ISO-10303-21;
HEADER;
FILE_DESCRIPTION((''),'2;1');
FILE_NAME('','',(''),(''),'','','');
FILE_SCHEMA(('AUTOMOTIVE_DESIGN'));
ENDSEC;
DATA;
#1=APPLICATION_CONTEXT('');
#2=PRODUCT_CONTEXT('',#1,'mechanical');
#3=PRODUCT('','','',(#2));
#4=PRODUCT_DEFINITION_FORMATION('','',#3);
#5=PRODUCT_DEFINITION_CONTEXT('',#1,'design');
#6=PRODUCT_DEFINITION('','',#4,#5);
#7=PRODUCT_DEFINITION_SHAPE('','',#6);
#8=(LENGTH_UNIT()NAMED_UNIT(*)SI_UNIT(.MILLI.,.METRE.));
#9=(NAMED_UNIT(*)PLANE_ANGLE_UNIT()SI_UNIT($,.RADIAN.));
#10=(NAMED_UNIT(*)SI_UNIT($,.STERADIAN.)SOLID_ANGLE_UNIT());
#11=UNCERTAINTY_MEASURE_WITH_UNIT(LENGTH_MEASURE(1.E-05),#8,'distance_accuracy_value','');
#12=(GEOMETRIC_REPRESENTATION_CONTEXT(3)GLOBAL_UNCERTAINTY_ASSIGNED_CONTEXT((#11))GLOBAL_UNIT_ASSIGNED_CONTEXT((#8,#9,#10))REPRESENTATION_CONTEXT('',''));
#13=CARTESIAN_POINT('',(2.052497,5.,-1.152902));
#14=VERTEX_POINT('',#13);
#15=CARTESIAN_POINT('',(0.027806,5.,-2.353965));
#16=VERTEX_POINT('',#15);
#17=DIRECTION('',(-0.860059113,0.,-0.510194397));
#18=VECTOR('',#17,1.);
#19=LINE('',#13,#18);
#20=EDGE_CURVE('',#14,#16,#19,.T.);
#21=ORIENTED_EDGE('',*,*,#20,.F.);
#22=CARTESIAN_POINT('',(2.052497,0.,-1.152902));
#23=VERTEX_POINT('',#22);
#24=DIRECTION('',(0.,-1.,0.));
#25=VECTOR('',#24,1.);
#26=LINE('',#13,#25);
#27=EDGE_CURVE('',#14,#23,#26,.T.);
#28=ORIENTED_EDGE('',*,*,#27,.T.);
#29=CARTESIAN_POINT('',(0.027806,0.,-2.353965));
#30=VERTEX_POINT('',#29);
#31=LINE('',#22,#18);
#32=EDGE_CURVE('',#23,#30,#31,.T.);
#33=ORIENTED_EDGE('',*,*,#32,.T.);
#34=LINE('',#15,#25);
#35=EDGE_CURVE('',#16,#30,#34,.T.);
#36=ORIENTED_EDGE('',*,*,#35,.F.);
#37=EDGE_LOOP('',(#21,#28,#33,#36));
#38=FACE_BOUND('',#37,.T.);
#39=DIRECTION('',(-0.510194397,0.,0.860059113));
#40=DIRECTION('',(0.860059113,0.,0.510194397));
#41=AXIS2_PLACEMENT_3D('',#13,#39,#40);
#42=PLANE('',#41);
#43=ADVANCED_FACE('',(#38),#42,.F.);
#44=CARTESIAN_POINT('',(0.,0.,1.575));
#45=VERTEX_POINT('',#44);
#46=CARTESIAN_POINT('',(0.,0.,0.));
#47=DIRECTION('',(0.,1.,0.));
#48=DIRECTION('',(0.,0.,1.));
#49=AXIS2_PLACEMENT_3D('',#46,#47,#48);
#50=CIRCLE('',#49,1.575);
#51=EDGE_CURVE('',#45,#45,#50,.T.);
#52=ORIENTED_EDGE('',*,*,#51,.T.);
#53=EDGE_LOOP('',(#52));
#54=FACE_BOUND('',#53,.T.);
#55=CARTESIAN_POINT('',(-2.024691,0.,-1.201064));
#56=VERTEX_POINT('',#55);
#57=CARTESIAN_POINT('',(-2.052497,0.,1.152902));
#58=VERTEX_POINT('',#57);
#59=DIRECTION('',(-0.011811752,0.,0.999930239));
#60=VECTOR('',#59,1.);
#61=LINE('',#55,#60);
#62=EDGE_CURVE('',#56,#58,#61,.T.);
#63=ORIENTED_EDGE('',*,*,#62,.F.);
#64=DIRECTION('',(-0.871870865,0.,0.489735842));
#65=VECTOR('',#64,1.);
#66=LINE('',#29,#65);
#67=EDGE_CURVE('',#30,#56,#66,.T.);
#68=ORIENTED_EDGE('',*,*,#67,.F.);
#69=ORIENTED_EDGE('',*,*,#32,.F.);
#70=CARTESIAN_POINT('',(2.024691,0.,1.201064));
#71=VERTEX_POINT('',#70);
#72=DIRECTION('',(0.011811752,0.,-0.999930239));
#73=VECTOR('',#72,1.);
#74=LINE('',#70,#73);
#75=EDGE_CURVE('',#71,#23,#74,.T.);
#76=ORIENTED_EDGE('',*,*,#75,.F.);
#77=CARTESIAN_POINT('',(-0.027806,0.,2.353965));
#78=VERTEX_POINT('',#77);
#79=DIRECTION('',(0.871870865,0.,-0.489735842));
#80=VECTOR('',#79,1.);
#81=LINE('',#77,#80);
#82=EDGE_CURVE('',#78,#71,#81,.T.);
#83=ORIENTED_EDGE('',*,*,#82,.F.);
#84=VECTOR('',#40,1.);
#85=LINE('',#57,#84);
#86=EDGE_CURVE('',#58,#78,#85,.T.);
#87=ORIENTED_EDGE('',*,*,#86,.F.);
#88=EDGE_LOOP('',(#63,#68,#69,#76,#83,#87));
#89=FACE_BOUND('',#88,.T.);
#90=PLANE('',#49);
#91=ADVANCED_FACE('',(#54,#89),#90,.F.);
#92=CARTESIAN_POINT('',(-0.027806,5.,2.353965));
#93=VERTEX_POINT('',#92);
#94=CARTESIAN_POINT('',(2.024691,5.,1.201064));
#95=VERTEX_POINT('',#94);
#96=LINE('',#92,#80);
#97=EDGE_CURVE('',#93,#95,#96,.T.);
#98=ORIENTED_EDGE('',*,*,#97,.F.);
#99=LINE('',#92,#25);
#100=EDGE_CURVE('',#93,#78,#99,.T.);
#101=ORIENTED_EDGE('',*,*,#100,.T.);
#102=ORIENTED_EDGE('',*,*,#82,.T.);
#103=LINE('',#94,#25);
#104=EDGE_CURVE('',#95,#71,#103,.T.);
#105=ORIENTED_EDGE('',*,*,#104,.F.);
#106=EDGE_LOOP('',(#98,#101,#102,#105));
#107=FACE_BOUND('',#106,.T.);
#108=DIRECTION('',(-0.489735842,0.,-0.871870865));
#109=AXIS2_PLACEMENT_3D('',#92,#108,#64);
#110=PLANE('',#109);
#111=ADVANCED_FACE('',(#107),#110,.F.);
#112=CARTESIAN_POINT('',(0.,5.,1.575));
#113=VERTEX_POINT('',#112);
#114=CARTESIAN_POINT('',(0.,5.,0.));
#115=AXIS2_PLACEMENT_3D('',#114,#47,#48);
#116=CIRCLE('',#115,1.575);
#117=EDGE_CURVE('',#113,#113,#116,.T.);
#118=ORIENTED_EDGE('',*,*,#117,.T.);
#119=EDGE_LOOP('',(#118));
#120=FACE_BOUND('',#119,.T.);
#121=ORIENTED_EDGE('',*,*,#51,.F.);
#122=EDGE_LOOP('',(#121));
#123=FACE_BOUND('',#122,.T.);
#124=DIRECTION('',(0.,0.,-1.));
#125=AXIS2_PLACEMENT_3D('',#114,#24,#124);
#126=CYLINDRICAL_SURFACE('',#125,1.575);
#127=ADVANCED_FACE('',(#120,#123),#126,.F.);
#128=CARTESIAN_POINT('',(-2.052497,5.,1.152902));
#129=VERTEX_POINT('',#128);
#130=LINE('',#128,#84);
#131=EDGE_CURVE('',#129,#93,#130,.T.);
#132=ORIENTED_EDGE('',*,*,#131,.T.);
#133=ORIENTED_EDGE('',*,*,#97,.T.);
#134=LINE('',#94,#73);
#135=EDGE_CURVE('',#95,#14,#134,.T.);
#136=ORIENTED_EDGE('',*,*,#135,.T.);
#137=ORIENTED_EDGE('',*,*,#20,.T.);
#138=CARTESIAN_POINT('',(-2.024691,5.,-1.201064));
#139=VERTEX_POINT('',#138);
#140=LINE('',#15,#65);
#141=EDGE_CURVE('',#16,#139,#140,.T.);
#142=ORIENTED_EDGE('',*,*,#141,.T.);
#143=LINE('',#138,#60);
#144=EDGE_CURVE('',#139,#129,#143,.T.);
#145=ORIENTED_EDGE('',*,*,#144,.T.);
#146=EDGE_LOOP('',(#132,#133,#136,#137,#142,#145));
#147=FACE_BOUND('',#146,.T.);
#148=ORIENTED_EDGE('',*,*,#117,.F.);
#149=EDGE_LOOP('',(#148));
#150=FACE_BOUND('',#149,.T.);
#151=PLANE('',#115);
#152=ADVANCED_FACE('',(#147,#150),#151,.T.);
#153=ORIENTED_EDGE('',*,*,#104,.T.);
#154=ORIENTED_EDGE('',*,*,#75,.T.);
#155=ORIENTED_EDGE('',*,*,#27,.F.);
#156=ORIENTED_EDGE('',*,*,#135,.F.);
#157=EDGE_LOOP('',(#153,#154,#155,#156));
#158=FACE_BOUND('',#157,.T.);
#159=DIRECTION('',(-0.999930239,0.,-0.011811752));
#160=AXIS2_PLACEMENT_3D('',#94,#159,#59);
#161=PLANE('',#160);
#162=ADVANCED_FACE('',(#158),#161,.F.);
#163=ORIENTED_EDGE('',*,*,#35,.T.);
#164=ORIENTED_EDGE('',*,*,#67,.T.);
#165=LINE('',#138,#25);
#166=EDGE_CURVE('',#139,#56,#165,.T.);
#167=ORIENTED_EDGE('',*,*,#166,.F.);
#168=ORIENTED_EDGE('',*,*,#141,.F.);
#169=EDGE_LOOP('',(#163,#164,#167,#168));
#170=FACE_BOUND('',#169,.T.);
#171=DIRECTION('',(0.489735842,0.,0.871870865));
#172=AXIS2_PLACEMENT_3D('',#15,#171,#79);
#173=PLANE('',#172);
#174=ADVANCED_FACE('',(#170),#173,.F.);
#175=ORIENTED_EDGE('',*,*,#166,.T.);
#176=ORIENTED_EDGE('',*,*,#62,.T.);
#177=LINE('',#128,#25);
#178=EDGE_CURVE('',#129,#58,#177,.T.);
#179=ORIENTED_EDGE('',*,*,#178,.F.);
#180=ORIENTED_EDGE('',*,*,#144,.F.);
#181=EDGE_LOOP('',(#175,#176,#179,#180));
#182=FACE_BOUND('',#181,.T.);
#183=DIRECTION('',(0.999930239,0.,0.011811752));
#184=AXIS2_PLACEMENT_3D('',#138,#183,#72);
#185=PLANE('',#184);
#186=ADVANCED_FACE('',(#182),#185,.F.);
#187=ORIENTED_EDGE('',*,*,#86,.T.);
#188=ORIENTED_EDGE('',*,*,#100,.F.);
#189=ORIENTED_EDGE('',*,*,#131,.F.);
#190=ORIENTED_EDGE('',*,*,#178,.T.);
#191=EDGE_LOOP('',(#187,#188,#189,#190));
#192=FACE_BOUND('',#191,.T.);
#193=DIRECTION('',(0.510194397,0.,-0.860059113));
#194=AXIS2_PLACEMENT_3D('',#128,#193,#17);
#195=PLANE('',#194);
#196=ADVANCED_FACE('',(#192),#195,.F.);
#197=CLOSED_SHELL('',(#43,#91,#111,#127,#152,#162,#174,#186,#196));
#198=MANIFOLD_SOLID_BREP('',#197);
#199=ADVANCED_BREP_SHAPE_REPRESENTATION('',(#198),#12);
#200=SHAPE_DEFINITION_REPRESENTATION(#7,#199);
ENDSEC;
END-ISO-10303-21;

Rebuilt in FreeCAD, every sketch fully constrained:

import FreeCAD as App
import Part
import Sketcher
from FreeCAD import Vector

doc = App.newDocument("Part")
body = doc.addObject("PartDesign::Body", "Body")

# Sketch on XZ plane
sketch1 = body.newObject("Sketcher::SketchObject", "Sketch")
sketch1.AttachmentSupport = (doc.getObject("XZ_Plane"), [""])
sketch1.MapMode = "FlatFace"
sketch1.addGeometry(Part.LineSegment(Vector(2, 1.2, 0), Vector(2.1, -1.2, 0)), False)
sketch1.addGeometry(Part.LineSegment(Vector(2.1, -1.2, 0), Vector(0, -2.4, 0)), False)
sketch1.addGeometry(Part.LineSegment(Vector(0, -2.4, 0), Vector(-2, -1.2, 0)), False)
sketch1.addGeometry(Part.LineSegment(Vector(-2, -1.2, 0), Vector(-2.1, 1.2, 0)), False)
sketch1.addGeometry(Part.LineSegment(Vector(-2.1, 1.2, 0), Vector(0, 2.4, 0)), False)
sketch1.addGeometry(Part.LineSegment(Vector(0, 2.4, 0), Vector(2, 1.2, 0)), False)
sketch1.addGeometry(Part.Circle(Vector(0, 0, 0), Vector(0, 0, 1), 1.6), False)
sketch1.addConstraint(Sketcher.Constraint("Coincident", 0, 2, 1, 1))
sketch1.addConstraint(Sketcher.Constraint("Coincident", 1, 2, 2, 1))
sketch1.addConstraint(Sketcher.Constraint("Coincident", 2, 2, 3, 1))
sketch1.addConstraint(Sketcher.Constraint("Coincident", 3, 2, 4, 1))
sketch1.addConstraint(Sketcher.Constraint("Coincident", 4, 2, 5, 1))
sketch1.addConstraint(Sketcher.Constraint("Coincident", 5, 2, 0, 1))
sketch1.addConstraint(Sketcher.Constraint("Coincident", 6, 3, -1, 1))
sketch1.addConstraint(Sketcher.Constraint("Symmetric", 0, 2, 3, 2, -1, 1))
sketch1.addConstraint(Sketcher.Constraint("Symmetric", 1, 2, 4, 2, -1, 1))
sketch1.addConstraint(Sketcher.Constraint("Symmetric", 2, 2, 5, 2, -1, 1))
sketch1.addConstraint(Sketcher.Constraint("Equal", 0, 1))
sketch1.addConstraint(Sketcher.Constraint("Equal", 1, 2))
sketch1.addConstraint(Sketcher.Constraint("Diameter", 6, 3.15))
sketch1.addConstraint(Sketcher.Constraint("DistanceY", 0, 2, -1, 1, 1.152902))
sketch1.addConstraint(Sketcher.Constraint("DistanceY", 1, 2, 2, 2, 1.152902))
sketch1.addConstraint(Sketcher.Constraint("Distance", 0, 2.35413))
sketch1.addConstraint(Sketcher.Constraint("DistanceX", 2, 2, -1, 1, 2.024691))
pad1 = body.newObject("PartDesign::Pad", "Pad")
pad1.Profile = sketch1
pad1.Length = 5
pad1.Reversed = True

doc.recompute()
